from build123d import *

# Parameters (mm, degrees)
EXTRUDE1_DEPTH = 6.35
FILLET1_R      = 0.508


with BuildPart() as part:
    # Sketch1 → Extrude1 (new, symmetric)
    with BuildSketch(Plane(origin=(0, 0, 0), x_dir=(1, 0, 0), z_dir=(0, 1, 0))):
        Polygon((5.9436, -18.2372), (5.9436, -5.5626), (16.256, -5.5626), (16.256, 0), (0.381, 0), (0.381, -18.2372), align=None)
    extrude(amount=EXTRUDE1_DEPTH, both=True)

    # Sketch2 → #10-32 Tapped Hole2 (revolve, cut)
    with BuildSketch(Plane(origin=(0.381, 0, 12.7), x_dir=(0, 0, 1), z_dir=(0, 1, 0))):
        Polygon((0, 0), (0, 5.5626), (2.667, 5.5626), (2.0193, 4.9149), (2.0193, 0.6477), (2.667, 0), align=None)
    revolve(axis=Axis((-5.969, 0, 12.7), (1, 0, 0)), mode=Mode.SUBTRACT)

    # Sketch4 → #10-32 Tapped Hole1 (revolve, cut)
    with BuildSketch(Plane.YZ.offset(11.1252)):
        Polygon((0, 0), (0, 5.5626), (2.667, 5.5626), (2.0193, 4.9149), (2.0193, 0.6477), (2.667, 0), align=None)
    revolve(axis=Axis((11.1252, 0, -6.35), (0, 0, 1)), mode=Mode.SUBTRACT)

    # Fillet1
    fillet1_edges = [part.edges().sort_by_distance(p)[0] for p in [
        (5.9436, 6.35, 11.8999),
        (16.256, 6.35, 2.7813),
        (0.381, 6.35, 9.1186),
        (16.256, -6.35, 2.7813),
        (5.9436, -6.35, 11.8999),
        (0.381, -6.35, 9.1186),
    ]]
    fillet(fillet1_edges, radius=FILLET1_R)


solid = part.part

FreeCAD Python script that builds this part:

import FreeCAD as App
import Part
import Sketcher

V = App.Vector
Q = App.Units.Quantity


def edges_at(feature, points):
    """Names of the edges that pass closest to the given points."""
    edges = feature.Shape.Edges
    near = lambda p: min(range(len(edges)), key=lambda i: edges[i].distToShape(Part.Vertex(*p))[0])
    return sorted({f"Edge{near(p) + 1}" for p in points})

doc = App.newDocument("Part")
params = doc.addObject("Spreadsheet::Sheet", "Params")
for row, (alias, value) in enumerate([
    ("sketch1_width", "0.406 in"),
    ("sketch1_width2", "0.625 in"),
    ("sketch1_height", "0.499 in"),
    ("pad1_length", "0.5 in"),
    ("sketch2_width", "0.219 in"),
    ("sketch2_width2", "0.168 in"),
    ("sketch2_height", "0.105 in"),
    ("groove_angle", "360 deg"),
    ("sketch3_width", "0.105 in"),
    ("sketch3_height", "0.219 in"),
    ("sketch3_height2", "0.168 in"),
    ("groove2_angle", "360 deg"),
    ("fillet_radius", "0.02 in"),
], start=1):
    params.set(f"A{row}", alias)
    params.set(f"B{row}", "=" + value)
    params.setAlias(f"B{row}", alias)

body = doc.addObject("PartDesign::Body", "Body")

# Sketch on XZ plane
sketch1 = body.newObject("Sketcher::SketchObject", "Sketch")
sketch1.AttachmentSupport = (doc.getObject("XZ_Plane"), [""])
sketch1.MapMode = "FlatFace"
sketch1.addGeometry(Part.LineSegment(V(5.9436, 18.2372, 0), V(5.9436, 5.5626, 0)), False)
sketch1.addGeometry(Part.LineSegment(V(5.9436, 5.5626, 0), V(16.256, 5.5626, 0)), False)
sketch1.addGeometry(Part.LineSegment(V(16.256, 5.5626, 0), V(16.256, 0, 0)), False)
sketch1.addGeometry(Part.LineSegment(V(16.256, 0, 0), V(0.381, 0, 0)), False)
sketch1.addGeometry(Part.LineSegment(V(0.381, 0, 0), V(0.381, 18.2372, 0)), False)
sketch1.addGeometry(Part.LineSegment(V(0.381, 18.2372, 0), V(5.9436, 18.2372, 0)), False)
sketch1.addConstraint(Sketcher.Constraint("Coincident", 0, 2, 1, 1))
sketch1.addConstraint(Sketcher.Constraint("Coincident", 1, 2, 2, 1))
sketch1.addConstraint(Sketcher.Constraint("Coincident", 2, 2, 3, 1))
sketch1.addConstraint(Sketcher.Constraint("Coincident", 3, 2, 4, 1))
sketch1.addConstraint(Sketcher.Constraint("Coincident", 4, 2, 5, 1))
sketch1.addConstraint(Sketcher.Constraint("Coincident", 5, 2, 0, 1))
sketch1.addConstraint(Sketcher.Constraint("Vertical", 0))
sketch1.addConstraint(Sketcher.Constraint("Horizontal", 1))
sketch1.addConstraint(Sketcher.Constraint("Vertical", 2))
sketch1.addConstraint(Sketcher.Constraint("Horizontal", 3))
sketch1.addConstraint(Sketcher.Constraint("Vertical", 4))
sketch1.addConstraint(Sketcher.Constraint("Horizontal", 5))
sketch1.addConstraint(Sketcher.Constraint("PointOnObject", 2, 2, -1))
sketch1.addConstraint(Sketcher.Constraint("Equal", 5, 2))
sketch1.addConstraint(Sketcher.Constraint("DistanceX", 1, 1, 1, 2, Q("0.406 in")))
sketch1.addConstraint(Sketcher.Constraint("DistanceX", 3, 2, 3, 1, Q("0.625 in")))
sketch1.addConstraint(Sketcher.Constraint("DistanceY", 0, 2, 0, 1, Q("0.499 in")))
sketch1.addConstraint(Sketcher.Constraint("DistanceX", -1, 1, 1, 2, Q("0.64 in")))
sketch1.setExpression("Constraints[14]", "Params.sketch1_width")
sketch1.setExpression("Constraints[15]", "Params.sketch1_width2")
sketch1.setExpression("Constraints[16]", "Params.sketch1_height")
pad1 = body.newObject("PartDesign::Pad", "Pad")
pad1.Profile = sketch1
pad1.setExpression("Length", "Params.pad1_length")
pad1.Midplane = True

# Sketch on XZ plane
sketch2 = body.newObject("Sketcher::SketchObject", "Sketch001")
sketch2.AttachmentSupport = (doc.getObject("XZ_Plane"), [""])
sketch2.MapMode = "FlatFace"
sketch2.addGeometry(Part.LineSegment(V(5.9436, 12.7, 0), V(0.381, 12.7, 0)), False)
sketch2.addGeometry(Part.LineSegment(V(0.381, 12.7, 0), V(0.381, 15.367, 0)), False)
sketch2.addGeometry(Part.LineSegment(V(0.381, 15.367, 0), V(1.0287, 14.7193, 0)), False)
sketch2.addGeometry(Part.LineSegment(V(1.0287, 14.7193, 0), V(5.2959, 14.7193, 0)), False)
sketch2.addGeometry(Part.LineSegment(V(5.2959, 14.7193, 0), V(5.9436, 15.367, 0)), False)
sketch2.addGeometry(Part.LineSegment(V(5.9436, 15.367, 0), V(5.9436, 12.7, 0)), False)
sketch2.addGeometry(Part.LineSegment(V(0.381, 12.7, 0), V(5.9436, 12.7, 0)), True)  # axis
sketch2.addConstraint(Sketcher.Constraint("Coincident", 0, 2, 1, 1))
sketch2.addConstraint(Sketcher.Constraint("Coincident", 1, 2, 2, 1))
sketch2.addConstraint(Sketcher.Constraint("Coincident", 2, 2, 3, 1))
sketch2.addConstraint(Sketcher.Constraint("Coincident", 3, 2, 4, 1))
sketch2.addConstraint(Sketcher.Constraint("Coincident", 4, 2, 5, 1))
sketch2.addConstraint(Sketcher.Constraint("Coincident", 5, 2, 0, 1))
sketch2.addConstraint(Sketcher.Constraint("Horizontal", 0))
sketch2.addConstraint(Sketcher.Constraint("Vertical", 1))
sketch2.addConstraint(Sketcher.Constraint("Horizontal", 3))
sketch2.addConstraint(Sketcher.Constraint("Vertical", 5))
sketch2.addConstraint(Sketcher.Constraint("Horizontal", 6))
sketch2.addConstraint(Sketcher.Constraint("Coincident", 6, 1, 0, 2))
sketch2.addConstraint(Sketcher.Constraint("Perpendicular", 2, 4))
sketch2.addConstraint(Sketcher.Constraint("Horizontal", 1, 2, 4, 2))
sketch2.addConstraint(Sketcher.Constraint("Vertical", 4, 2, 6, 2))
sketch2.addConstraint(Sketcher.Constraint("Equal", 2, 4))
sketch2.addConstraint(Sketcher.Constraint("DistanceY", -1, 1, 0, 2, Q("0.5 in")))
sketch2.addConstraint(Sketcher.Constraint("DistanceX", 0, 2, 0, 1, Q("0.219 in")))
sketch2.addConstraint(Sketcher.Constraint("DistanceX", 3, 1, 3, 2, Q("0.168 in")))
sketch2.addConstraint(Sketcher.Constraint("DistanceY", 1, 1, 1, 2, Q("0.105 in")))
sketch2.addConstraint(Sketcher.Constraint("DistanceX", -1, 1, 0, 2, Q("0.015 in")))
sketch2.setExpression("Constraints[17]", "Params.sketch2_width")
sketch2.setExpression("Constraints[18]", "Params.sketch2_width2")
sketch2.setExpression("Constraints[19]", "Params.sketch2_height")
groove = body.newObject("PartDesign::Groove", "Groove")
groove.Profile = sketch2
groove.ReferenceAxis = (sketch2, ["Axis0"])
groove.setExpression("Angle", "Params.groove_angle")

# Sketch on YZ plane
sketch3 = body.newObject("Sketcher::SketchObject", "Sketch002")
sketch3.AttachmentSupport = (doc.getObject("YZ_Plane"), [""])
sketch3.MapMode = "FlatFace"
sketch3.AttachmentOffset = App.Placement(V(0, 0, 0.438 * 25.4), App.Rotation())
sketch3.addGeometry(Part.LineSegment(V(0, 5.5626, 0), V(0, 0, 0)), False)
sketch3.addGeometry(Part.LineSegment(V(0, 0, 0), V(2.667, 0, 0)), False)
sketch3.addGeometry(Part.LineSegment(V(2.667, 0, 0), V(2.0193, 0.6477, 0)), False)
sketch3.addGeometry(Part.LineSegment(V(2.0193, 0.6477, 0), V(2.0193, 4.9149, 0)), False)
sketch3.addGeometry(Part.LineSegment(V(2.0193, 4.9149, 0), V(2.667, 5.5626, 0)), False)
sketch3.addGeometry(Part.LineSegment(V(2.667, 5.5626, 0), V(0, 5.5626, 0)), False)
sketch3.addConstraint(Sketcher.Constraint("Coincident", 0, 2, 1, 1))
sketch3.addConstraint(Sketcher.Constraint("Coincident", 1, 2, 2, 1))
sketch3.addConstraint(Sketcher.Constraint("Coincident", 2, 2, 3, 1))
sketch3.addConstraint(Sketcher.Constraint("Coincident", 3, 2, 4, 1))
sketch3.addConstraint(Sketcher.Constraint("Coincident", 4, 2, 5, 1))
sketch3.addConstraint(Sketcher.Constraint("Coincident", 5, 2, 0, 1))
sketch3.addConstraint(Sketcher.Constraint("Vertical", 0))
sketch3.addConstraint(Sketcher.Constraint("Horizontal", 1))
sketch3.addConstraint(Sketcher.Constraint("Vertical", 3))
sketch3.addConstraint(Sketcher.Constraint("Horizontal", 5))
sketch3.addConstraint(Sketcher.Constraint("Coincident", 0, 2, -1, 1))
sketch3.addConstraint(Sketcher.Constraint("Perpendicular", 2, 4))
sketch3.addConstraint(Sketcher.Constraint("Vertical", 1, 2, 4, 2))
sketch3.addConstraint(Sketcher.Constraint("Equal", 2, 4))
sketch3.addConstraint(Sketcher.Constraint("DistanceX", 1, 1, 1, 2, Q("0.105 in")))
sketch3.addConstraint(Sketcher.Constraint("DistanceY", 0, 2, 0, 1, Q("0.219 in")))
sketch3.addConstraint(Sketcher.Constraint("DistanceY", 3, 1, 3, 2, Q("0.168 in")))
sketch3.setExpression("Constraints[14]", "Params.sketch3_width")
sketch3.setExpression("Constraints[15]", "Params.sketch3_height")
sketch3.setExpression("Constraints[16]", "Params.sketch3_height2")
groove2 = body.newObject("PartDesign::Groove", "Groove001")
groove2.Profile = sketch3
groove2.ReferenceAxis = (sketch3, ["V_Axis"])
groove2.setExpression("Angle", "Params.groove2_angle")
doc.recompute()

fillet = body.newObject("PartDesign::Fillet", "Fillet")
fillet.Base = (groove2, edges_at(groove2, [
    (5.944, 6.35, 11.9),
    (16.256, 6.35, 2.781),
    (0.381, 6.35, 9.119),
    (16.256, -6.35, 2.781),
    (5.944, -6.35, 11.9),
    (0.381, -6.35, 9.119),
]))
fillet.setExpression("Radius", "Params.fillet_radius")

doc.recompute()
